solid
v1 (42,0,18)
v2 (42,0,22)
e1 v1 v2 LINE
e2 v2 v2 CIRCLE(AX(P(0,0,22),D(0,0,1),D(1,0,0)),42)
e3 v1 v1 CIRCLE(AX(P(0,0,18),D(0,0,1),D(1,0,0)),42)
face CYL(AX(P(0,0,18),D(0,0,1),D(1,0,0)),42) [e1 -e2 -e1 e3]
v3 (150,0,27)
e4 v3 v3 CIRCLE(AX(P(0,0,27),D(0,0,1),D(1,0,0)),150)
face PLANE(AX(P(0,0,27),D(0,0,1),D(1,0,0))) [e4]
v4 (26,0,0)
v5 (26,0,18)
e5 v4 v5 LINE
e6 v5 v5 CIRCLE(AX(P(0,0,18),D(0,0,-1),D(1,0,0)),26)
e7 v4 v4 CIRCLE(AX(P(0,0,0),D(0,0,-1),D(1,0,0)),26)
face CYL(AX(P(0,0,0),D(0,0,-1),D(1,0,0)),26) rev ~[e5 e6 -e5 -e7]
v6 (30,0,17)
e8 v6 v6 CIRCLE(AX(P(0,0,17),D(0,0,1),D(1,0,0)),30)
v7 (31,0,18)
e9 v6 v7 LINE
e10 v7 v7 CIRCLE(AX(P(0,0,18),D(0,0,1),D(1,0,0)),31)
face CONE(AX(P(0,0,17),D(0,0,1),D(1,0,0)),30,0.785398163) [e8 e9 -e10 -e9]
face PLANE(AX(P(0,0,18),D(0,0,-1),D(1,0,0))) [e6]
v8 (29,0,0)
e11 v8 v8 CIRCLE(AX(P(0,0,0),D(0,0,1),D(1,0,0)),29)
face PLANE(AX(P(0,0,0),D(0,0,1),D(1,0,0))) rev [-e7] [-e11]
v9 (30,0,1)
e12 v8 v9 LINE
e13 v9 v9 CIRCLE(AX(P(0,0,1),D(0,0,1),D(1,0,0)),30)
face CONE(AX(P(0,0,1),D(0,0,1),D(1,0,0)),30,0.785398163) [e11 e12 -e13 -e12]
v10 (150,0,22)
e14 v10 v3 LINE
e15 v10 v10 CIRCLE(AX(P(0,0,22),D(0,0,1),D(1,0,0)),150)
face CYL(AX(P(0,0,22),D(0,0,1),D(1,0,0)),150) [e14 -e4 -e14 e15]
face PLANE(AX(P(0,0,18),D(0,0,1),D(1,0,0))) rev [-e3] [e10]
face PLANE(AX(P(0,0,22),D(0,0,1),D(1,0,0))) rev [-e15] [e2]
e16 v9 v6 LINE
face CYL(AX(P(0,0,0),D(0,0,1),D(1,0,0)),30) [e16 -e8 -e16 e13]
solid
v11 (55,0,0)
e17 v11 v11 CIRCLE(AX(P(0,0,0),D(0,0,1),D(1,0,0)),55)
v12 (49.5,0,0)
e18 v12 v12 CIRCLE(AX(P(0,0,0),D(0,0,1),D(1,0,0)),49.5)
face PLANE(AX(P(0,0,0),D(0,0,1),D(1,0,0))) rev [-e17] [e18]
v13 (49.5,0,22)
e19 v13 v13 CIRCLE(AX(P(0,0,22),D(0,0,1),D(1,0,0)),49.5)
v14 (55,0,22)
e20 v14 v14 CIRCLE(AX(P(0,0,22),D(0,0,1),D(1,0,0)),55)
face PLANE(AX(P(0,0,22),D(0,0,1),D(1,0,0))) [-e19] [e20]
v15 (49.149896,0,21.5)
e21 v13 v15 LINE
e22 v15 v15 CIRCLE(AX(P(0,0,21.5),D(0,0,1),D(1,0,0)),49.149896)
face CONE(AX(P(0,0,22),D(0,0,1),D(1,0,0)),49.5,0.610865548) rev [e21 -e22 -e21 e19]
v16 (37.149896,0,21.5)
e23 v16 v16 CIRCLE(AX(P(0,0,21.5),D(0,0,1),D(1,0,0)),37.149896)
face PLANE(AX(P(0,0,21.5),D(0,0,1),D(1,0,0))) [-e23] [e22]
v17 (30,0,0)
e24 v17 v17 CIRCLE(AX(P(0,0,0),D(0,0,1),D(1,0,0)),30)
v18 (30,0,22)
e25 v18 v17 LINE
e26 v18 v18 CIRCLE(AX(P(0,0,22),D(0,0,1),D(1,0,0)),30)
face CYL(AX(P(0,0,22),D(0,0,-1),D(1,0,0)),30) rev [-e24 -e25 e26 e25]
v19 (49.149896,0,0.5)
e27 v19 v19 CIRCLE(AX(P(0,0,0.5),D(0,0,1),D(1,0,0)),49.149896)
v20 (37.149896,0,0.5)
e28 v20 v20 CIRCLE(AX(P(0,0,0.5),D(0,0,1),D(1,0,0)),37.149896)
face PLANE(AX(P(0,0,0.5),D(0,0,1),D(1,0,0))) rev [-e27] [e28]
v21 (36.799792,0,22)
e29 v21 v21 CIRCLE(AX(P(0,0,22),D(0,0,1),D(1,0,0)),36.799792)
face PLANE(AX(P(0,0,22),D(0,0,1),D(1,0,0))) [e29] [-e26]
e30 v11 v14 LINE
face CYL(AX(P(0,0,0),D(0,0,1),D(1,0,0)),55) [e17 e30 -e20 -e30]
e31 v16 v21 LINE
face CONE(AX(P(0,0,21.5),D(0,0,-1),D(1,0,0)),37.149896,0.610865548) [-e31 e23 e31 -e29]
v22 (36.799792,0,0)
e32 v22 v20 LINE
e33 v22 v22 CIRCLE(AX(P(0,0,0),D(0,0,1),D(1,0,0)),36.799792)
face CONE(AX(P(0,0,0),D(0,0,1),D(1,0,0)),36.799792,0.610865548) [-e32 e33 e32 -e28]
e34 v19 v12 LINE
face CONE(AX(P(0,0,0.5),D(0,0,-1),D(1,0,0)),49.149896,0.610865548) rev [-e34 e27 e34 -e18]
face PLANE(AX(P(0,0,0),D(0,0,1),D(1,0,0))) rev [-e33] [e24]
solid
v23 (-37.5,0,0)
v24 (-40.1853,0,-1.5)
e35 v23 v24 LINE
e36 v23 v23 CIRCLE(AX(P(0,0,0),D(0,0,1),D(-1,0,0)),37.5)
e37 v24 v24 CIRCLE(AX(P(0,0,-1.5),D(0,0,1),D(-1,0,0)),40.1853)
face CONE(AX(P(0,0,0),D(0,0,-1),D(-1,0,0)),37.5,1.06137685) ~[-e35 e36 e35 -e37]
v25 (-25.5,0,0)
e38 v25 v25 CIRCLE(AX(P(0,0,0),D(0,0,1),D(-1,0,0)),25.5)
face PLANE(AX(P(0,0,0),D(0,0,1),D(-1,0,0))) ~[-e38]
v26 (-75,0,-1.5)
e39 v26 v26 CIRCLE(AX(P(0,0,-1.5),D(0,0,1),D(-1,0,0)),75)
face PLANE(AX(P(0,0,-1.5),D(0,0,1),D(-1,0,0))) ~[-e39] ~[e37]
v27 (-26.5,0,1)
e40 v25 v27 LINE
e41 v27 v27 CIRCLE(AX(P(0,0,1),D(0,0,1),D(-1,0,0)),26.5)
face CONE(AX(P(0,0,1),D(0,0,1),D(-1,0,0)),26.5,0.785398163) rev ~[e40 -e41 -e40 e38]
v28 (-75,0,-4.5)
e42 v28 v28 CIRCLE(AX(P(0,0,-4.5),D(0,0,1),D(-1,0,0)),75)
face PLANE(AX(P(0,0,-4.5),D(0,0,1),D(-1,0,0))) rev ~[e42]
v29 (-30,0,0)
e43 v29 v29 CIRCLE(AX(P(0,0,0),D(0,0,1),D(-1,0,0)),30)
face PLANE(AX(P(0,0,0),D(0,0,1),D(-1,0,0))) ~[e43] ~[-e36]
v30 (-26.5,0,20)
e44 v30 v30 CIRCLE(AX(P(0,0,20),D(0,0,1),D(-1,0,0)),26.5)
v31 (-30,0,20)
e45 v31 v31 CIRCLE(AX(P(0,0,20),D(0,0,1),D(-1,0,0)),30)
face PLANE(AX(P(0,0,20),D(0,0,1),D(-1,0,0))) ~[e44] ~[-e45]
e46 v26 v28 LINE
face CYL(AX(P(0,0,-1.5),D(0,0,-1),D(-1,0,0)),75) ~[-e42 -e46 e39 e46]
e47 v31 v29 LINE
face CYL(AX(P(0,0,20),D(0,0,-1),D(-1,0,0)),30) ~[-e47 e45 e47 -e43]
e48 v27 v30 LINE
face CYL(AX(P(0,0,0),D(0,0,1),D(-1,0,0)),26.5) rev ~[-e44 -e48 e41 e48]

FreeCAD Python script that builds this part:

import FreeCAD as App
import Part
import Sketcher

V = App.Vector
Q = App.Units.Quantity


def edges_at(feature, points):
    """Names of the edges that pass closest to the given points."""
    edges = feature.Shape.Edges
    near = lambda p: min(range(len(edges)), key=lambda i: edges[i].distToShape(Part.Vertex(*p))[0])
    return sorted({f"Edge{near(p) + 1}" for p in points})


def add_polygon(sketch, points):
    """Adds a closed chain of lines whose ends are joined by coincident constraints."""
    first, n = sketch.GeometryCount, len(points)
    for a, b in zip(points, points[1:] + points[:1]):
        sketch.addGeometry(Part.LineSegment(App.Vector(*a, 0), App.Vector(*b, 0)), False)
    for i in range(n):
        sketch.addConstraint(Sketcher.Constraint("Coincident", first + i, 2, first + (i + 1) % n, 1))

doc = App.newDocument("Part")
body = doc.addObject("PartDesign::Body", "Body")

# Sketch on XZ plane
sketch1 = body.newObject("Sketcher::SketchObject", "Sketch")
sketch1.AttachmentSupport = (doc.getObject("XZ_Plane"), [""])
sketch1.MapMode = "FlatFace"
add_polygon(sketch1, [(0, 0), (30, 0), (30, 18), (42, 18), (42, 22), (150, 22), (150, 27), (0, 27)])  # lines 0-7
sketch1.addConstraint([
    Sketcher.Constraint("Horizontal", 0),
    Sketcher.Constraint("Vertical", 1),
    Sketcher.Constraint("Horizontal", 2),
    Sketcher.Constraint("Vertical", 3),
    Sketcher.Constraint("Horizontal", 4),
    Sketcher.Constraint("Vertical", 5),
    Sketcher.Constraint("Horizontal", 6),
    Sketcher.Constraint("Vertical", 7),
    Sketcher.Constraint("Coincident", 7, 2, -1, 1),
    Sketcher.Constraint("DistanceX", 0, 1, 0, 2, 30.0),
    Sketcher.Constraint("DistanceX", 2, 1, 2, 2, 12.0),
    Sketcher.Constraint("DistanceX", 4, 1, 4, 2, 108.0),
    Sketcher.Constraint("DistanceY", 1, 1, 1, 2, 18.0),
    Sketcher.Constraint("DistanceY", 3, 1, 3, 2, 4.0),
    Sketcher.Constraint("DistanceY", 5, 1, 5, 2, 5.0),
])
revolution = body.newObject("PartDesign::Revolution", "Revolution")
revolution.Profile = sketch1
revolution.ReferenceAxis = (sketch1, ["V_Axis"])
revolution.Angle = 360

# Sketch on XY plane
sketch2 = body.newObject("Sketcher::SketchObject", "Sketch001")
sketch2.AttachmentSupport = (doc.getObject("XY_Plane"), [""])
sketch2.MapMode = "FlatFace"
sketch2.addGeometry(Part.Circle(V(0, 0, 0), V(0, 0, 1), 26), False)
sketch2.addConstraint([
    Sketcher.Constraint("Coincident", 0, 3, -1, 1),
    Sketcher.Constraint("Diameter", 0, 52.0),
])
pocket1 = body.newObject("PartDesign::Pocket", "Pocket")
pocket1.Profile = sketch2
pocket1.Length = 18
pocket1.Reversed = True
doc.recompute()

chamfer = body.newObject("PartDesign::Chamfer", "Chamfer")
chamfer.Base = (pocket1, edges_at(pocket1, [(-30, 0, 0), (-30, 0, 18)]))
chamfer.Size = 1
body2 = doc.addObject("PartDesign::Body", "Body001")

# Sketch on XZ plane
sketch3 = body2.newObject("Sketcher::SketchObject", "Sketch002")
sketch3.AttachmentSupport = (doc.getObject("XZ_Plane001"), [""])
sketch3.MapMode = "FlatFace"
add_polygon(sketch3, [(30, 22), (30, 0), (36.799792, 0), (37.149896, 0.5), (49.149896, 0.5), (49.5, 0), (55, 0), (55, 22), (49.5, 22), (49.149896, 21.5), (37.149896, 21.5), (36.799792, 22)])  # lines 0-11
sketch3.addConstraint([
    Sketcher.Constraint("Vertical", 0),
    Sketcher.Constraint("Horizontal", 1),
    Sketcher.Constraint("Horizontal", 3),
    Sketcher.Constraint("Horizontal", 5),
    Sketcher.Constraint("Vertical", 6),
    Sketcher.Constraint("Horizontal", 7),
    Sketcher.Constraint("Horizontal", 9),
    Sketcher.Constraint("Horizontal", 11),
    Sketcher.Constraint("PointOnObject", 0, 2, -1),
    Sketcher.Constraint("PointOnObject", 4, 2, -1),
    Sketcher.Constraint("Parallel", 2, 8),
    Sketcher.Constraint("Parallel", 4, 10),
    Sketcher.Constraint("Horizontal", 7, 2, 10, 2),
    Sketcher.Constraint("Vertical", 4, 2, 7, 2),
    Sketcher.Constraint("Vertical", 3, 2, 8, 2),
    Sketcher.Constraint("Vertical", 2, 2, 9, 2),
    Sketcher.Constraint("Vertical", 1, 2, 10, 2),
    Sketcher.Constraint("DistanceX", 3, 1, 3, 2, 12.0),
    Sketcher.Constraint("DistanceY", 0, 2, 0, 1, 22.0),
    Sketcher.Constraint("Angle", 2, Q("54.999982 deg")),
    Sketcher.Constraint("DistanceX", 5, 1, 5, 2, 5.5),
    Sketcher.Constraint("DistanceX", -1, 1, 0, 2, 30.0),
    Sketcher.Constraint("DistanceX", -1, 1, 5, 2, 55.0),
    Sketcher.Constraint("DistanceY", 3, 2, 8, 2, 21.0),
])
revolution2 = body2.newObject("PartDesign::Revolution", "Revolution001")
revolution2.Profile = sketch3
revolution2.ReferenceAxis = (sketch3, ["V_Axis"])
revolution2.Angle = 360
body3 = doc.addObject("PartDesign::Body", "Body002")

# Sketch on XZ plane
sketch4 = body3.newObject("Sketcher::SketchObject", "Sketch003")
sketch4.AttachmentSupport = (doc.getObject("XZ_Plane002"), [""])
sketch4.MapMode = "FlatFace"
add_polygon(sketch4, [(0, 0), (-26.5, 0), (-26.5, 20), (-30, 20), (-30, 0), (-37.5, 0), (-37.5, -3), (0, -3)])  # lines 0-7
sketch4.addConstraint([
    Sketcher.Constraint("Horizontal", 0),
    Sketcher.Constraint("Vertical", 1),
    Sketcher.Constraint("Horizontal", 2),
    Sketcher.Constraint("Vertical", 3),
    Sketcher.Constraint("Horizontal", 4),
    Sketcher.Constraint("Vertical", 5),
    Sketcher.Constraint("Horizontal", 6),
    Sketcher.Constraint("Vertical", 7),
    Sketcher.Constraint("Coincident", 7, 2, -1, 1),
    Sketcher.Constraint("PointOnObject", 3, 2, -1),
    Sketcher.Constraint("DistanceY", 1, 1, 1, 2, 20.0),
    Sketcher.Constraint("DistanceY", 5, 2, 5, 1, 3.0),
    Sketcher.Constraint("DistanceX", 0, 2, 0, 1, 26.5),
    Sketcher.Constraint("DistanceX", 2, 2, 2, 1, 3.5),
    Sketcher.Constraint("DistanceX", 4, 2, 4, 1, 7.5),
])
revolution3 = body3.newObject("PartDesign::Revolution", "Revolution002")
revolution3.Profile = sketch4
revolution3.ReferenceAxis = (sketch4, ["V_Axis"])
revolution3.Angle = 360
doc.recompute()

chamfer2 = body3.newObject("PartDesign::Chamfer", "Chamfer001")
chamfer2.Base = (revolution3, edges_at(revolution3, [(26.5, 0, 0)]))
chamfer2.Size = 1

# Sketch on XZ plane
sketch5 = body3.newObject("Sketcher::SketchObject", "Sketch004")
sketch5.AttachmentSupport = (doc.getObject("XZ_Plane002"), [""])
sketch5.MapMode = "FlatFace"
add_polygon(sketch5, [(-37.5, 0), (-40.1853, -1.5), (-75, -1.5), (-75, -4.5), (0, -4.5), (0, -3), (-37.5, -3)])  # lines 0-6
sketch5.addConstraint([
    Sketcher.Constraint("Horizontal", 1),
    Sketcher.Constraint("Vertical", 2),
    Sketcher.Constraint("Horizontal", 3),
    Sketcher.Constraint("Vertical", 4),
    Sketcher.Constraint("Horizontal", 5),
    Sketcher.Constraint("Vertical", 6),
    Sketcher.Constraint("PointOnObject", 3, 2, -2),
    Sketcher.Constraint("PointOnObject", 6, 2, -1),
    Sketcher.Constraint("Equal", 2, 6),
    Sketcher.Constraint("DistanceX", 3, 1, 3, 2, 75.0),
    Sketcher.Constraint("DistanceY", 2, 2, 2, 1, 3.0),
    Sketcher.Constraint("DistanceX", 5, 2, 5, 1, 37.5),
    Sketcher.Constraint("DistanceY", 4, 1, 4, 2, 1.5),
    Sketcher.Constraint("DistanceX", 1, 2, 1, 1, 34.8147),
])
revolution4 = body3.newObject("PartDesign::Revolution", "Revolution003")
revolution4.Profile = sketch5
revolution4.ReferenceAxis = (sketch5, ["V_Axis"])
revolution4.Angle = 360

doc.recompute()
